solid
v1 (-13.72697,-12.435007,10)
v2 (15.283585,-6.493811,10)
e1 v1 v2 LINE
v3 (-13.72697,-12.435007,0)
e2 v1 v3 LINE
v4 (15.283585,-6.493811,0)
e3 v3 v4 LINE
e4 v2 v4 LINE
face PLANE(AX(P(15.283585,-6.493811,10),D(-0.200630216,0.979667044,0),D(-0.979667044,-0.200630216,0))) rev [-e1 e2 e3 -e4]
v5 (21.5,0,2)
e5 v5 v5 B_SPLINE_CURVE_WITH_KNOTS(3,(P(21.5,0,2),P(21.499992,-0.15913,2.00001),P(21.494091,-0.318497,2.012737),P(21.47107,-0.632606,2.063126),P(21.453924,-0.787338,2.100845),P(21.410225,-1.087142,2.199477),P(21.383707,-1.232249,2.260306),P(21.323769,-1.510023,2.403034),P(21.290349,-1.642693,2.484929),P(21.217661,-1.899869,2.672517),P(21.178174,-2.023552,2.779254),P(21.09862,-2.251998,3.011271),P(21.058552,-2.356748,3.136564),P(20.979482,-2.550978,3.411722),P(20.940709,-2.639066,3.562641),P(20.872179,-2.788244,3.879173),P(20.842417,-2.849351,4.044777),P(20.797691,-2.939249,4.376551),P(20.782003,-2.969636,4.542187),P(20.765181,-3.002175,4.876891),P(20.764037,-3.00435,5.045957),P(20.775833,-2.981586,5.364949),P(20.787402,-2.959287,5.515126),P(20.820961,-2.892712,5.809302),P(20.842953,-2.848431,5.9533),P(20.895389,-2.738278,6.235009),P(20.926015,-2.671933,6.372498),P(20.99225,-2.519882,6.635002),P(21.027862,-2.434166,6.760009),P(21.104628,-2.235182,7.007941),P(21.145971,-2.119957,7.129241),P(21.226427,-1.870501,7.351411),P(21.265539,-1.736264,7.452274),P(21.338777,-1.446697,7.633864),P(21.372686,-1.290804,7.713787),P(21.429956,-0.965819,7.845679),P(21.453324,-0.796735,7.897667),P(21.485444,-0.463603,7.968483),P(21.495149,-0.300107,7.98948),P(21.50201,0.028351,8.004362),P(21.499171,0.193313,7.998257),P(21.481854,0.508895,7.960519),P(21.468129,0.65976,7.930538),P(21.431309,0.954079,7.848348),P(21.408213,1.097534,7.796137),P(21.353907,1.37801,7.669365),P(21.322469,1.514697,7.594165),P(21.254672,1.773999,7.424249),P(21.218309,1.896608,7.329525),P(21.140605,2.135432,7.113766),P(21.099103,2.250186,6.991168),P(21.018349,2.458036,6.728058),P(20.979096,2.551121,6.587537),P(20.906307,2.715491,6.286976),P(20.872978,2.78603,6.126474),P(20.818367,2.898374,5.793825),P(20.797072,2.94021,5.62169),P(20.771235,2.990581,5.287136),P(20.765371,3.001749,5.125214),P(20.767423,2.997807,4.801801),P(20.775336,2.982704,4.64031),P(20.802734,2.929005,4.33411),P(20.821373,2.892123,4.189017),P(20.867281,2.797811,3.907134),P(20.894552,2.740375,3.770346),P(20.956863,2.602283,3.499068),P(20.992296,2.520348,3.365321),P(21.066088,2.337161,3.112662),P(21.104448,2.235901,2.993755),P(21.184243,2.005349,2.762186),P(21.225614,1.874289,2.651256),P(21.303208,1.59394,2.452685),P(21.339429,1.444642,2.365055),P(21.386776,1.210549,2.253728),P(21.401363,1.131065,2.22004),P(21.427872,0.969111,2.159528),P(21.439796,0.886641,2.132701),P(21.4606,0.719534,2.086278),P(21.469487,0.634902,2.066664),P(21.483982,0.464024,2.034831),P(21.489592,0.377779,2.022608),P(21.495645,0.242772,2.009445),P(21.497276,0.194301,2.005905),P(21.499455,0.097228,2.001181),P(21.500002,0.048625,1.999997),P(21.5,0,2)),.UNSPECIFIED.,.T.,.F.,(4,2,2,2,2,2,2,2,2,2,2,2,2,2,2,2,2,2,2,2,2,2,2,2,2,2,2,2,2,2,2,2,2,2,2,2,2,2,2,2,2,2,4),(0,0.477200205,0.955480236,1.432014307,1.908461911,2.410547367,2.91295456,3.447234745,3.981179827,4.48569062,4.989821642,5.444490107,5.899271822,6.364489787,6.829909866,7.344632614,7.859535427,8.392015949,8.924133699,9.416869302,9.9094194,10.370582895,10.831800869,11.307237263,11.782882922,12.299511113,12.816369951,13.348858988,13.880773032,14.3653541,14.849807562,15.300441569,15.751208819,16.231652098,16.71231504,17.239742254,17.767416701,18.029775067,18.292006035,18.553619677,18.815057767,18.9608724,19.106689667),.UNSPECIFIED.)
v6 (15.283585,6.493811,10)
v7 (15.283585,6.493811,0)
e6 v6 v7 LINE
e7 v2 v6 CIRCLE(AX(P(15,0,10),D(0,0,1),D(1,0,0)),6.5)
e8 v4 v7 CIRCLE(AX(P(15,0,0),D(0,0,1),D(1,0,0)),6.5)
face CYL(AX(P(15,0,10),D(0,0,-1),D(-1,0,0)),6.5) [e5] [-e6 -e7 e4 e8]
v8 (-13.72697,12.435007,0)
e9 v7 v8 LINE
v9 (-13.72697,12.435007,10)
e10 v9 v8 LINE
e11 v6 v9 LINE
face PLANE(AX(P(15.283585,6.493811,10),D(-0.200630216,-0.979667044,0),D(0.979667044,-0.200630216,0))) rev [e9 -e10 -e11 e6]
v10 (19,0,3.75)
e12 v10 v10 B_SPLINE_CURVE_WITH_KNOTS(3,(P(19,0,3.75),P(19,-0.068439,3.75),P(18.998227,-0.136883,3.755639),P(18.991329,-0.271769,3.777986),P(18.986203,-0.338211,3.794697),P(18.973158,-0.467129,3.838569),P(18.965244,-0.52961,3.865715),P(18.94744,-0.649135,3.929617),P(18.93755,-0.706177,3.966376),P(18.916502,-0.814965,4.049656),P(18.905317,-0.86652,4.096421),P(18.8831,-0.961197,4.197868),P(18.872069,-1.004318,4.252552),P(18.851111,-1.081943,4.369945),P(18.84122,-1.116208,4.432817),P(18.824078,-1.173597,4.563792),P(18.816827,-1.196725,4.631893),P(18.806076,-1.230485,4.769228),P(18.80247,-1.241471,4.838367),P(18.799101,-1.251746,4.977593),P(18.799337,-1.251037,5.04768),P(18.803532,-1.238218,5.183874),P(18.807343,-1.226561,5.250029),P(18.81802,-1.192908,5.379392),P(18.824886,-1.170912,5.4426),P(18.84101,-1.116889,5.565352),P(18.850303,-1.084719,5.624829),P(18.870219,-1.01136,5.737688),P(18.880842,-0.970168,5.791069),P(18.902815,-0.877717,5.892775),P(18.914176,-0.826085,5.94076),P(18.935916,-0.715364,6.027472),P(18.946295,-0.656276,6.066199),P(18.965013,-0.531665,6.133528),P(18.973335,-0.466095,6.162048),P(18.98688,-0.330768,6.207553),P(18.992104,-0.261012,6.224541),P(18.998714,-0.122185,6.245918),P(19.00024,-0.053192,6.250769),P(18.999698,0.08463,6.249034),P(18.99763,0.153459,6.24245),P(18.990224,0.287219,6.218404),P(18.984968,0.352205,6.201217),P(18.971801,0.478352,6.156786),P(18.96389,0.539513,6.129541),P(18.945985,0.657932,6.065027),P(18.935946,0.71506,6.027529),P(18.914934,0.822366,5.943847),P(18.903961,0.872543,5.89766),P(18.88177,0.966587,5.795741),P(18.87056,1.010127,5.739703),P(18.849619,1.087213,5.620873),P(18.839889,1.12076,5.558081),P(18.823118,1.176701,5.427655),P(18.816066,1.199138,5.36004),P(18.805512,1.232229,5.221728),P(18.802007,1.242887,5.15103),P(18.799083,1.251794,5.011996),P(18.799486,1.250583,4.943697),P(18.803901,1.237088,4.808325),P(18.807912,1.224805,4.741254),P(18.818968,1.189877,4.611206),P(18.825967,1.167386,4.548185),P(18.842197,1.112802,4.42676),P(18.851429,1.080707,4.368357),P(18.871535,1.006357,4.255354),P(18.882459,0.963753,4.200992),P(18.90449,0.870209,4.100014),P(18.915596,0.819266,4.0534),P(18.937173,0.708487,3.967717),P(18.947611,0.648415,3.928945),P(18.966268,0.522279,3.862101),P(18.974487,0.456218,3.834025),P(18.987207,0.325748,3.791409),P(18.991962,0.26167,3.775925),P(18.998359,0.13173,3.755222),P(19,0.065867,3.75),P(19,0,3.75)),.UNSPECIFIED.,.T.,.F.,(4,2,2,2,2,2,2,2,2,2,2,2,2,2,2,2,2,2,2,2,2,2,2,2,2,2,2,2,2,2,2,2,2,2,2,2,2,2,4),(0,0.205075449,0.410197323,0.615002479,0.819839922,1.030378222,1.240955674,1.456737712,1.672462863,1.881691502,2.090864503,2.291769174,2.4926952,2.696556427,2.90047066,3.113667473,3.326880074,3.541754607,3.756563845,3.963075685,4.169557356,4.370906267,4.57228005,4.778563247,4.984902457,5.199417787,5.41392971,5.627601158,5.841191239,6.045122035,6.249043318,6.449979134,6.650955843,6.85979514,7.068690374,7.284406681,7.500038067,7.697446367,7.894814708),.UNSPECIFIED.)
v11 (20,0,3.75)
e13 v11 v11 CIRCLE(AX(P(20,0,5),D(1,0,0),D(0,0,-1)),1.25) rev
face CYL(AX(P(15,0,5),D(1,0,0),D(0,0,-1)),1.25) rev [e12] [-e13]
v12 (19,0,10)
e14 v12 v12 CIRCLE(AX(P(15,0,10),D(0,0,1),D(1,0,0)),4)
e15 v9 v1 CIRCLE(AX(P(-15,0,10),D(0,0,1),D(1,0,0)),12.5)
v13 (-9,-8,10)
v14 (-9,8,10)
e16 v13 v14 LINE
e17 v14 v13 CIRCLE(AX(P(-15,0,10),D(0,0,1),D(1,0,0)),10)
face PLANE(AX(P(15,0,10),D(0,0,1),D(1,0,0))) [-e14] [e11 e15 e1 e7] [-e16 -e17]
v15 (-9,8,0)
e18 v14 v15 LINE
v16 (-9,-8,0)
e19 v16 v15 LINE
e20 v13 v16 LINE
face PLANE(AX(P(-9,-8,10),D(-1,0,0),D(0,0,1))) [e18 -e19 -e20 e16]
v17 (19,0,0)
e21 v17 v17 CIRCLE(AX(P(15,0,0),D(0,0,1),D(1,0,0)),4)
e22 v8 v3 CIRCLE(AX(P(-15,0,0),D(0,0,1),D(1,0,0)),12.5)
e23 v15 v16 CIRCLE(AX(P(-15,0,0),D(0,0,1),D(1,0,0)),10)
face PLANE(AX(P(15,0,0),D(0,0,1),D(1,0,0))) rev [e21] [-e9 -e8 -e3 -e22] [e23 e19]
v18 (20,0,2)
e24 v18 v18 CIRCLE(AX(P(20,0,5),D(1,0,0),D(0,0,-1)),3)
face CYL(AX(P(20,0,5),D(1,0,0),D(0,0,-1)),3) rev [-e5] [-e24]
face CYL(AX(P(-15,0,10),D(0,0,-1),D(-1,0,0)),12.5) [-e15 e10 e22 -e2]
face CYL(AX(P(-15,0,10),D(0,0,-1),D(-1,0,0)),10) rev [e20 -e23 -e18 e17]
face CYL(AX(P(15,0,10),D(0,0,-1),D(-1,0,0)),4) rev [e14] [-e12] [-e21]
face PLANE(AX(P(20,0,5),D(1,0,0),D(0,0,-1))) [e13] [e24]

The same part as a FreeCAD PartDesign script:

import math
import FreeCAD as App
import Part
import Sketcher

V = App.Vector

doc = App.newDocument("Part")
body = doc.addObject("PartDesign::Body", "Body")

# Sketch on XY plane
sketch1 = body.newObject("Sketcher::SketchObject", "Sketch")
sketch1.AttachmentSupport = (doc.getObject("XY_Plane"), [""])
sketch1.MapMode = "FlatFace"
sketch1.addGeometry([
    Part.LineSegment(V(15.283585, 6.493811, 0), V(-13.72697, 12.435007, 0)),  # 0
    Part.ArcOfCircle(Part.Circle(V(-15, 0, 0), V(0, 0, 1), 12.5), math.radians(84.154726), math.radians(275.845274)),  # 1
    Part.LineSegment(V(-13.72697, -12.435007, 0), V(15.283585, -6.493811, 0)),  # 2
    Part.ArcOfCircle(Part.Circle(V(15, 0, 0), V(0, 0, 1), 6.5), math.radians(-87.499482), math.radians(87.499482)),  # 3
    Part.LineSegment(V(-9, 8, 0), V(-9, -8, 0)),  # 4
    Part.ArcOfCircle(Part.Circle(V(-15, 0, 0), V(0, 0, 1), 10), math.radians(53.130102), math.radians(306.869898)),  # 5
    Part.Circle(V(15, 0, 0), V(0, 0, 1), 4),  # 6
], False)
sketch1.addConstraint([
    Sketcher.Constraint("Coincident", 0, 2, 1, 1),
    Sketcher.Constraint("Coincident", 1, 2, 2, 1),
    Sketcher.Constraint("Coincident", 2, 2, 3, 1),
    Sketcher.Constraint("Coincident", 3, 2, 0, 1),
    Sketcher.Constraint("Coincident", 4, 1, 5, 1),
    Sketcher.Constraint("Coincident", 5, 2, 4, 2),
    Sketcher.Constraint("Vertical", 4),
    Sketcher.Constraint("Coincident", 5, 3, 1, 3),
    Sketcher.Constraint("Coincident", 6, 3, 3, 3),
    Sketcher.Constraint("Symmetric", 1, 3, 3, 3, -1, 1),
    Sketcher.Constraint("Symmetric", 0, 2, 1, 2, -1),
    Sketcher.Constraint("Vertical", 2, 2, 3, 2),
    Sketcher.Constraint("Diameter", 6, 8.0),
    Sketcher.Constraint("Radius", 5, 10.0),
    Sketcher.Constraint("Radius", 1, 12.5),
    Sketcher.Constraint("Radius", 3, 6.5),
    Sketcher.Constraint("DistanceY", 4, 2, 4, 1, 16.0),
    Sketcher.Constraint("DistanceX", 1, 3, -1, 1, 15.0),
    Sketcher.Constraint("DistanceX", 0, 2, -1, 1, 13.72697),
    Sketcher.Constraint("DistanceY", 2, 2, -1, 1, 6.493811),
])
pad1 = body.newObject("PartDesign::Pad", "Pad")
pad1.Profile = sketch1
pad1.Length = 10

# Sketch on YZ plane
sketch2 = body.newObject("Sketcher::SketchObject", "Sketch001")
sketch2.AttachmentSupport = (doc.getObject("YZ_Plane"), [""])
sketch2.MapMode = "FlatFace"
sketch2.AttachmentOffset = App.Placement(V(0, 0, 22), App.Rotation())
sketch2.addGeometry(Part.Circle(V(0, 5, 0), V(0, 0, 1), 1.25), False)
sketch2.addConstraint([
    Sketcher.Constraint("PointOnObject", 0, 3, -2),
    Sketcher.Constraint("Diameter", 0, 2.5),
    Sketcher.Constraint("DistanceY", -1, 1, 0, 3, 5.0),
])
pocket1 = body.newObject("PartDesign::Pocket", "Pocket")
pocket1.Profile = sketch2
pocket1.Length = 7

# Sketch on YZ plane
sketch3 = body.newObject("Sketcher::SketchObject", "Sketch002")
sketch3.AttachmentSupport = (doc.getObject("YZ_Plane"), [""])
sketch3.MapMode = "FlatFace"
sketch3.AttachmentOffset = App.Placement(V(0, 0, 22), App.Rotation())
sketch3.addGeometry(Part.Circle(V(0, 5, 0), V(0, 0, 1), 3), False)
sketch3.addConstraint([
    Sketcher.Constraint("PointOnObject", 0, 3, -2),
    Sketcher.Constraint("Diameter", 0, 6.0),
    Sketcher.Constraint("DistanceY", -1, 1, 0, 3, 5.0),
])
pocket2 = body.newObject("PartDesign::Pocket", "Pocket001")
pocket2.Profile = sketch3
pocket2.Length = 2

doc.recompute()
